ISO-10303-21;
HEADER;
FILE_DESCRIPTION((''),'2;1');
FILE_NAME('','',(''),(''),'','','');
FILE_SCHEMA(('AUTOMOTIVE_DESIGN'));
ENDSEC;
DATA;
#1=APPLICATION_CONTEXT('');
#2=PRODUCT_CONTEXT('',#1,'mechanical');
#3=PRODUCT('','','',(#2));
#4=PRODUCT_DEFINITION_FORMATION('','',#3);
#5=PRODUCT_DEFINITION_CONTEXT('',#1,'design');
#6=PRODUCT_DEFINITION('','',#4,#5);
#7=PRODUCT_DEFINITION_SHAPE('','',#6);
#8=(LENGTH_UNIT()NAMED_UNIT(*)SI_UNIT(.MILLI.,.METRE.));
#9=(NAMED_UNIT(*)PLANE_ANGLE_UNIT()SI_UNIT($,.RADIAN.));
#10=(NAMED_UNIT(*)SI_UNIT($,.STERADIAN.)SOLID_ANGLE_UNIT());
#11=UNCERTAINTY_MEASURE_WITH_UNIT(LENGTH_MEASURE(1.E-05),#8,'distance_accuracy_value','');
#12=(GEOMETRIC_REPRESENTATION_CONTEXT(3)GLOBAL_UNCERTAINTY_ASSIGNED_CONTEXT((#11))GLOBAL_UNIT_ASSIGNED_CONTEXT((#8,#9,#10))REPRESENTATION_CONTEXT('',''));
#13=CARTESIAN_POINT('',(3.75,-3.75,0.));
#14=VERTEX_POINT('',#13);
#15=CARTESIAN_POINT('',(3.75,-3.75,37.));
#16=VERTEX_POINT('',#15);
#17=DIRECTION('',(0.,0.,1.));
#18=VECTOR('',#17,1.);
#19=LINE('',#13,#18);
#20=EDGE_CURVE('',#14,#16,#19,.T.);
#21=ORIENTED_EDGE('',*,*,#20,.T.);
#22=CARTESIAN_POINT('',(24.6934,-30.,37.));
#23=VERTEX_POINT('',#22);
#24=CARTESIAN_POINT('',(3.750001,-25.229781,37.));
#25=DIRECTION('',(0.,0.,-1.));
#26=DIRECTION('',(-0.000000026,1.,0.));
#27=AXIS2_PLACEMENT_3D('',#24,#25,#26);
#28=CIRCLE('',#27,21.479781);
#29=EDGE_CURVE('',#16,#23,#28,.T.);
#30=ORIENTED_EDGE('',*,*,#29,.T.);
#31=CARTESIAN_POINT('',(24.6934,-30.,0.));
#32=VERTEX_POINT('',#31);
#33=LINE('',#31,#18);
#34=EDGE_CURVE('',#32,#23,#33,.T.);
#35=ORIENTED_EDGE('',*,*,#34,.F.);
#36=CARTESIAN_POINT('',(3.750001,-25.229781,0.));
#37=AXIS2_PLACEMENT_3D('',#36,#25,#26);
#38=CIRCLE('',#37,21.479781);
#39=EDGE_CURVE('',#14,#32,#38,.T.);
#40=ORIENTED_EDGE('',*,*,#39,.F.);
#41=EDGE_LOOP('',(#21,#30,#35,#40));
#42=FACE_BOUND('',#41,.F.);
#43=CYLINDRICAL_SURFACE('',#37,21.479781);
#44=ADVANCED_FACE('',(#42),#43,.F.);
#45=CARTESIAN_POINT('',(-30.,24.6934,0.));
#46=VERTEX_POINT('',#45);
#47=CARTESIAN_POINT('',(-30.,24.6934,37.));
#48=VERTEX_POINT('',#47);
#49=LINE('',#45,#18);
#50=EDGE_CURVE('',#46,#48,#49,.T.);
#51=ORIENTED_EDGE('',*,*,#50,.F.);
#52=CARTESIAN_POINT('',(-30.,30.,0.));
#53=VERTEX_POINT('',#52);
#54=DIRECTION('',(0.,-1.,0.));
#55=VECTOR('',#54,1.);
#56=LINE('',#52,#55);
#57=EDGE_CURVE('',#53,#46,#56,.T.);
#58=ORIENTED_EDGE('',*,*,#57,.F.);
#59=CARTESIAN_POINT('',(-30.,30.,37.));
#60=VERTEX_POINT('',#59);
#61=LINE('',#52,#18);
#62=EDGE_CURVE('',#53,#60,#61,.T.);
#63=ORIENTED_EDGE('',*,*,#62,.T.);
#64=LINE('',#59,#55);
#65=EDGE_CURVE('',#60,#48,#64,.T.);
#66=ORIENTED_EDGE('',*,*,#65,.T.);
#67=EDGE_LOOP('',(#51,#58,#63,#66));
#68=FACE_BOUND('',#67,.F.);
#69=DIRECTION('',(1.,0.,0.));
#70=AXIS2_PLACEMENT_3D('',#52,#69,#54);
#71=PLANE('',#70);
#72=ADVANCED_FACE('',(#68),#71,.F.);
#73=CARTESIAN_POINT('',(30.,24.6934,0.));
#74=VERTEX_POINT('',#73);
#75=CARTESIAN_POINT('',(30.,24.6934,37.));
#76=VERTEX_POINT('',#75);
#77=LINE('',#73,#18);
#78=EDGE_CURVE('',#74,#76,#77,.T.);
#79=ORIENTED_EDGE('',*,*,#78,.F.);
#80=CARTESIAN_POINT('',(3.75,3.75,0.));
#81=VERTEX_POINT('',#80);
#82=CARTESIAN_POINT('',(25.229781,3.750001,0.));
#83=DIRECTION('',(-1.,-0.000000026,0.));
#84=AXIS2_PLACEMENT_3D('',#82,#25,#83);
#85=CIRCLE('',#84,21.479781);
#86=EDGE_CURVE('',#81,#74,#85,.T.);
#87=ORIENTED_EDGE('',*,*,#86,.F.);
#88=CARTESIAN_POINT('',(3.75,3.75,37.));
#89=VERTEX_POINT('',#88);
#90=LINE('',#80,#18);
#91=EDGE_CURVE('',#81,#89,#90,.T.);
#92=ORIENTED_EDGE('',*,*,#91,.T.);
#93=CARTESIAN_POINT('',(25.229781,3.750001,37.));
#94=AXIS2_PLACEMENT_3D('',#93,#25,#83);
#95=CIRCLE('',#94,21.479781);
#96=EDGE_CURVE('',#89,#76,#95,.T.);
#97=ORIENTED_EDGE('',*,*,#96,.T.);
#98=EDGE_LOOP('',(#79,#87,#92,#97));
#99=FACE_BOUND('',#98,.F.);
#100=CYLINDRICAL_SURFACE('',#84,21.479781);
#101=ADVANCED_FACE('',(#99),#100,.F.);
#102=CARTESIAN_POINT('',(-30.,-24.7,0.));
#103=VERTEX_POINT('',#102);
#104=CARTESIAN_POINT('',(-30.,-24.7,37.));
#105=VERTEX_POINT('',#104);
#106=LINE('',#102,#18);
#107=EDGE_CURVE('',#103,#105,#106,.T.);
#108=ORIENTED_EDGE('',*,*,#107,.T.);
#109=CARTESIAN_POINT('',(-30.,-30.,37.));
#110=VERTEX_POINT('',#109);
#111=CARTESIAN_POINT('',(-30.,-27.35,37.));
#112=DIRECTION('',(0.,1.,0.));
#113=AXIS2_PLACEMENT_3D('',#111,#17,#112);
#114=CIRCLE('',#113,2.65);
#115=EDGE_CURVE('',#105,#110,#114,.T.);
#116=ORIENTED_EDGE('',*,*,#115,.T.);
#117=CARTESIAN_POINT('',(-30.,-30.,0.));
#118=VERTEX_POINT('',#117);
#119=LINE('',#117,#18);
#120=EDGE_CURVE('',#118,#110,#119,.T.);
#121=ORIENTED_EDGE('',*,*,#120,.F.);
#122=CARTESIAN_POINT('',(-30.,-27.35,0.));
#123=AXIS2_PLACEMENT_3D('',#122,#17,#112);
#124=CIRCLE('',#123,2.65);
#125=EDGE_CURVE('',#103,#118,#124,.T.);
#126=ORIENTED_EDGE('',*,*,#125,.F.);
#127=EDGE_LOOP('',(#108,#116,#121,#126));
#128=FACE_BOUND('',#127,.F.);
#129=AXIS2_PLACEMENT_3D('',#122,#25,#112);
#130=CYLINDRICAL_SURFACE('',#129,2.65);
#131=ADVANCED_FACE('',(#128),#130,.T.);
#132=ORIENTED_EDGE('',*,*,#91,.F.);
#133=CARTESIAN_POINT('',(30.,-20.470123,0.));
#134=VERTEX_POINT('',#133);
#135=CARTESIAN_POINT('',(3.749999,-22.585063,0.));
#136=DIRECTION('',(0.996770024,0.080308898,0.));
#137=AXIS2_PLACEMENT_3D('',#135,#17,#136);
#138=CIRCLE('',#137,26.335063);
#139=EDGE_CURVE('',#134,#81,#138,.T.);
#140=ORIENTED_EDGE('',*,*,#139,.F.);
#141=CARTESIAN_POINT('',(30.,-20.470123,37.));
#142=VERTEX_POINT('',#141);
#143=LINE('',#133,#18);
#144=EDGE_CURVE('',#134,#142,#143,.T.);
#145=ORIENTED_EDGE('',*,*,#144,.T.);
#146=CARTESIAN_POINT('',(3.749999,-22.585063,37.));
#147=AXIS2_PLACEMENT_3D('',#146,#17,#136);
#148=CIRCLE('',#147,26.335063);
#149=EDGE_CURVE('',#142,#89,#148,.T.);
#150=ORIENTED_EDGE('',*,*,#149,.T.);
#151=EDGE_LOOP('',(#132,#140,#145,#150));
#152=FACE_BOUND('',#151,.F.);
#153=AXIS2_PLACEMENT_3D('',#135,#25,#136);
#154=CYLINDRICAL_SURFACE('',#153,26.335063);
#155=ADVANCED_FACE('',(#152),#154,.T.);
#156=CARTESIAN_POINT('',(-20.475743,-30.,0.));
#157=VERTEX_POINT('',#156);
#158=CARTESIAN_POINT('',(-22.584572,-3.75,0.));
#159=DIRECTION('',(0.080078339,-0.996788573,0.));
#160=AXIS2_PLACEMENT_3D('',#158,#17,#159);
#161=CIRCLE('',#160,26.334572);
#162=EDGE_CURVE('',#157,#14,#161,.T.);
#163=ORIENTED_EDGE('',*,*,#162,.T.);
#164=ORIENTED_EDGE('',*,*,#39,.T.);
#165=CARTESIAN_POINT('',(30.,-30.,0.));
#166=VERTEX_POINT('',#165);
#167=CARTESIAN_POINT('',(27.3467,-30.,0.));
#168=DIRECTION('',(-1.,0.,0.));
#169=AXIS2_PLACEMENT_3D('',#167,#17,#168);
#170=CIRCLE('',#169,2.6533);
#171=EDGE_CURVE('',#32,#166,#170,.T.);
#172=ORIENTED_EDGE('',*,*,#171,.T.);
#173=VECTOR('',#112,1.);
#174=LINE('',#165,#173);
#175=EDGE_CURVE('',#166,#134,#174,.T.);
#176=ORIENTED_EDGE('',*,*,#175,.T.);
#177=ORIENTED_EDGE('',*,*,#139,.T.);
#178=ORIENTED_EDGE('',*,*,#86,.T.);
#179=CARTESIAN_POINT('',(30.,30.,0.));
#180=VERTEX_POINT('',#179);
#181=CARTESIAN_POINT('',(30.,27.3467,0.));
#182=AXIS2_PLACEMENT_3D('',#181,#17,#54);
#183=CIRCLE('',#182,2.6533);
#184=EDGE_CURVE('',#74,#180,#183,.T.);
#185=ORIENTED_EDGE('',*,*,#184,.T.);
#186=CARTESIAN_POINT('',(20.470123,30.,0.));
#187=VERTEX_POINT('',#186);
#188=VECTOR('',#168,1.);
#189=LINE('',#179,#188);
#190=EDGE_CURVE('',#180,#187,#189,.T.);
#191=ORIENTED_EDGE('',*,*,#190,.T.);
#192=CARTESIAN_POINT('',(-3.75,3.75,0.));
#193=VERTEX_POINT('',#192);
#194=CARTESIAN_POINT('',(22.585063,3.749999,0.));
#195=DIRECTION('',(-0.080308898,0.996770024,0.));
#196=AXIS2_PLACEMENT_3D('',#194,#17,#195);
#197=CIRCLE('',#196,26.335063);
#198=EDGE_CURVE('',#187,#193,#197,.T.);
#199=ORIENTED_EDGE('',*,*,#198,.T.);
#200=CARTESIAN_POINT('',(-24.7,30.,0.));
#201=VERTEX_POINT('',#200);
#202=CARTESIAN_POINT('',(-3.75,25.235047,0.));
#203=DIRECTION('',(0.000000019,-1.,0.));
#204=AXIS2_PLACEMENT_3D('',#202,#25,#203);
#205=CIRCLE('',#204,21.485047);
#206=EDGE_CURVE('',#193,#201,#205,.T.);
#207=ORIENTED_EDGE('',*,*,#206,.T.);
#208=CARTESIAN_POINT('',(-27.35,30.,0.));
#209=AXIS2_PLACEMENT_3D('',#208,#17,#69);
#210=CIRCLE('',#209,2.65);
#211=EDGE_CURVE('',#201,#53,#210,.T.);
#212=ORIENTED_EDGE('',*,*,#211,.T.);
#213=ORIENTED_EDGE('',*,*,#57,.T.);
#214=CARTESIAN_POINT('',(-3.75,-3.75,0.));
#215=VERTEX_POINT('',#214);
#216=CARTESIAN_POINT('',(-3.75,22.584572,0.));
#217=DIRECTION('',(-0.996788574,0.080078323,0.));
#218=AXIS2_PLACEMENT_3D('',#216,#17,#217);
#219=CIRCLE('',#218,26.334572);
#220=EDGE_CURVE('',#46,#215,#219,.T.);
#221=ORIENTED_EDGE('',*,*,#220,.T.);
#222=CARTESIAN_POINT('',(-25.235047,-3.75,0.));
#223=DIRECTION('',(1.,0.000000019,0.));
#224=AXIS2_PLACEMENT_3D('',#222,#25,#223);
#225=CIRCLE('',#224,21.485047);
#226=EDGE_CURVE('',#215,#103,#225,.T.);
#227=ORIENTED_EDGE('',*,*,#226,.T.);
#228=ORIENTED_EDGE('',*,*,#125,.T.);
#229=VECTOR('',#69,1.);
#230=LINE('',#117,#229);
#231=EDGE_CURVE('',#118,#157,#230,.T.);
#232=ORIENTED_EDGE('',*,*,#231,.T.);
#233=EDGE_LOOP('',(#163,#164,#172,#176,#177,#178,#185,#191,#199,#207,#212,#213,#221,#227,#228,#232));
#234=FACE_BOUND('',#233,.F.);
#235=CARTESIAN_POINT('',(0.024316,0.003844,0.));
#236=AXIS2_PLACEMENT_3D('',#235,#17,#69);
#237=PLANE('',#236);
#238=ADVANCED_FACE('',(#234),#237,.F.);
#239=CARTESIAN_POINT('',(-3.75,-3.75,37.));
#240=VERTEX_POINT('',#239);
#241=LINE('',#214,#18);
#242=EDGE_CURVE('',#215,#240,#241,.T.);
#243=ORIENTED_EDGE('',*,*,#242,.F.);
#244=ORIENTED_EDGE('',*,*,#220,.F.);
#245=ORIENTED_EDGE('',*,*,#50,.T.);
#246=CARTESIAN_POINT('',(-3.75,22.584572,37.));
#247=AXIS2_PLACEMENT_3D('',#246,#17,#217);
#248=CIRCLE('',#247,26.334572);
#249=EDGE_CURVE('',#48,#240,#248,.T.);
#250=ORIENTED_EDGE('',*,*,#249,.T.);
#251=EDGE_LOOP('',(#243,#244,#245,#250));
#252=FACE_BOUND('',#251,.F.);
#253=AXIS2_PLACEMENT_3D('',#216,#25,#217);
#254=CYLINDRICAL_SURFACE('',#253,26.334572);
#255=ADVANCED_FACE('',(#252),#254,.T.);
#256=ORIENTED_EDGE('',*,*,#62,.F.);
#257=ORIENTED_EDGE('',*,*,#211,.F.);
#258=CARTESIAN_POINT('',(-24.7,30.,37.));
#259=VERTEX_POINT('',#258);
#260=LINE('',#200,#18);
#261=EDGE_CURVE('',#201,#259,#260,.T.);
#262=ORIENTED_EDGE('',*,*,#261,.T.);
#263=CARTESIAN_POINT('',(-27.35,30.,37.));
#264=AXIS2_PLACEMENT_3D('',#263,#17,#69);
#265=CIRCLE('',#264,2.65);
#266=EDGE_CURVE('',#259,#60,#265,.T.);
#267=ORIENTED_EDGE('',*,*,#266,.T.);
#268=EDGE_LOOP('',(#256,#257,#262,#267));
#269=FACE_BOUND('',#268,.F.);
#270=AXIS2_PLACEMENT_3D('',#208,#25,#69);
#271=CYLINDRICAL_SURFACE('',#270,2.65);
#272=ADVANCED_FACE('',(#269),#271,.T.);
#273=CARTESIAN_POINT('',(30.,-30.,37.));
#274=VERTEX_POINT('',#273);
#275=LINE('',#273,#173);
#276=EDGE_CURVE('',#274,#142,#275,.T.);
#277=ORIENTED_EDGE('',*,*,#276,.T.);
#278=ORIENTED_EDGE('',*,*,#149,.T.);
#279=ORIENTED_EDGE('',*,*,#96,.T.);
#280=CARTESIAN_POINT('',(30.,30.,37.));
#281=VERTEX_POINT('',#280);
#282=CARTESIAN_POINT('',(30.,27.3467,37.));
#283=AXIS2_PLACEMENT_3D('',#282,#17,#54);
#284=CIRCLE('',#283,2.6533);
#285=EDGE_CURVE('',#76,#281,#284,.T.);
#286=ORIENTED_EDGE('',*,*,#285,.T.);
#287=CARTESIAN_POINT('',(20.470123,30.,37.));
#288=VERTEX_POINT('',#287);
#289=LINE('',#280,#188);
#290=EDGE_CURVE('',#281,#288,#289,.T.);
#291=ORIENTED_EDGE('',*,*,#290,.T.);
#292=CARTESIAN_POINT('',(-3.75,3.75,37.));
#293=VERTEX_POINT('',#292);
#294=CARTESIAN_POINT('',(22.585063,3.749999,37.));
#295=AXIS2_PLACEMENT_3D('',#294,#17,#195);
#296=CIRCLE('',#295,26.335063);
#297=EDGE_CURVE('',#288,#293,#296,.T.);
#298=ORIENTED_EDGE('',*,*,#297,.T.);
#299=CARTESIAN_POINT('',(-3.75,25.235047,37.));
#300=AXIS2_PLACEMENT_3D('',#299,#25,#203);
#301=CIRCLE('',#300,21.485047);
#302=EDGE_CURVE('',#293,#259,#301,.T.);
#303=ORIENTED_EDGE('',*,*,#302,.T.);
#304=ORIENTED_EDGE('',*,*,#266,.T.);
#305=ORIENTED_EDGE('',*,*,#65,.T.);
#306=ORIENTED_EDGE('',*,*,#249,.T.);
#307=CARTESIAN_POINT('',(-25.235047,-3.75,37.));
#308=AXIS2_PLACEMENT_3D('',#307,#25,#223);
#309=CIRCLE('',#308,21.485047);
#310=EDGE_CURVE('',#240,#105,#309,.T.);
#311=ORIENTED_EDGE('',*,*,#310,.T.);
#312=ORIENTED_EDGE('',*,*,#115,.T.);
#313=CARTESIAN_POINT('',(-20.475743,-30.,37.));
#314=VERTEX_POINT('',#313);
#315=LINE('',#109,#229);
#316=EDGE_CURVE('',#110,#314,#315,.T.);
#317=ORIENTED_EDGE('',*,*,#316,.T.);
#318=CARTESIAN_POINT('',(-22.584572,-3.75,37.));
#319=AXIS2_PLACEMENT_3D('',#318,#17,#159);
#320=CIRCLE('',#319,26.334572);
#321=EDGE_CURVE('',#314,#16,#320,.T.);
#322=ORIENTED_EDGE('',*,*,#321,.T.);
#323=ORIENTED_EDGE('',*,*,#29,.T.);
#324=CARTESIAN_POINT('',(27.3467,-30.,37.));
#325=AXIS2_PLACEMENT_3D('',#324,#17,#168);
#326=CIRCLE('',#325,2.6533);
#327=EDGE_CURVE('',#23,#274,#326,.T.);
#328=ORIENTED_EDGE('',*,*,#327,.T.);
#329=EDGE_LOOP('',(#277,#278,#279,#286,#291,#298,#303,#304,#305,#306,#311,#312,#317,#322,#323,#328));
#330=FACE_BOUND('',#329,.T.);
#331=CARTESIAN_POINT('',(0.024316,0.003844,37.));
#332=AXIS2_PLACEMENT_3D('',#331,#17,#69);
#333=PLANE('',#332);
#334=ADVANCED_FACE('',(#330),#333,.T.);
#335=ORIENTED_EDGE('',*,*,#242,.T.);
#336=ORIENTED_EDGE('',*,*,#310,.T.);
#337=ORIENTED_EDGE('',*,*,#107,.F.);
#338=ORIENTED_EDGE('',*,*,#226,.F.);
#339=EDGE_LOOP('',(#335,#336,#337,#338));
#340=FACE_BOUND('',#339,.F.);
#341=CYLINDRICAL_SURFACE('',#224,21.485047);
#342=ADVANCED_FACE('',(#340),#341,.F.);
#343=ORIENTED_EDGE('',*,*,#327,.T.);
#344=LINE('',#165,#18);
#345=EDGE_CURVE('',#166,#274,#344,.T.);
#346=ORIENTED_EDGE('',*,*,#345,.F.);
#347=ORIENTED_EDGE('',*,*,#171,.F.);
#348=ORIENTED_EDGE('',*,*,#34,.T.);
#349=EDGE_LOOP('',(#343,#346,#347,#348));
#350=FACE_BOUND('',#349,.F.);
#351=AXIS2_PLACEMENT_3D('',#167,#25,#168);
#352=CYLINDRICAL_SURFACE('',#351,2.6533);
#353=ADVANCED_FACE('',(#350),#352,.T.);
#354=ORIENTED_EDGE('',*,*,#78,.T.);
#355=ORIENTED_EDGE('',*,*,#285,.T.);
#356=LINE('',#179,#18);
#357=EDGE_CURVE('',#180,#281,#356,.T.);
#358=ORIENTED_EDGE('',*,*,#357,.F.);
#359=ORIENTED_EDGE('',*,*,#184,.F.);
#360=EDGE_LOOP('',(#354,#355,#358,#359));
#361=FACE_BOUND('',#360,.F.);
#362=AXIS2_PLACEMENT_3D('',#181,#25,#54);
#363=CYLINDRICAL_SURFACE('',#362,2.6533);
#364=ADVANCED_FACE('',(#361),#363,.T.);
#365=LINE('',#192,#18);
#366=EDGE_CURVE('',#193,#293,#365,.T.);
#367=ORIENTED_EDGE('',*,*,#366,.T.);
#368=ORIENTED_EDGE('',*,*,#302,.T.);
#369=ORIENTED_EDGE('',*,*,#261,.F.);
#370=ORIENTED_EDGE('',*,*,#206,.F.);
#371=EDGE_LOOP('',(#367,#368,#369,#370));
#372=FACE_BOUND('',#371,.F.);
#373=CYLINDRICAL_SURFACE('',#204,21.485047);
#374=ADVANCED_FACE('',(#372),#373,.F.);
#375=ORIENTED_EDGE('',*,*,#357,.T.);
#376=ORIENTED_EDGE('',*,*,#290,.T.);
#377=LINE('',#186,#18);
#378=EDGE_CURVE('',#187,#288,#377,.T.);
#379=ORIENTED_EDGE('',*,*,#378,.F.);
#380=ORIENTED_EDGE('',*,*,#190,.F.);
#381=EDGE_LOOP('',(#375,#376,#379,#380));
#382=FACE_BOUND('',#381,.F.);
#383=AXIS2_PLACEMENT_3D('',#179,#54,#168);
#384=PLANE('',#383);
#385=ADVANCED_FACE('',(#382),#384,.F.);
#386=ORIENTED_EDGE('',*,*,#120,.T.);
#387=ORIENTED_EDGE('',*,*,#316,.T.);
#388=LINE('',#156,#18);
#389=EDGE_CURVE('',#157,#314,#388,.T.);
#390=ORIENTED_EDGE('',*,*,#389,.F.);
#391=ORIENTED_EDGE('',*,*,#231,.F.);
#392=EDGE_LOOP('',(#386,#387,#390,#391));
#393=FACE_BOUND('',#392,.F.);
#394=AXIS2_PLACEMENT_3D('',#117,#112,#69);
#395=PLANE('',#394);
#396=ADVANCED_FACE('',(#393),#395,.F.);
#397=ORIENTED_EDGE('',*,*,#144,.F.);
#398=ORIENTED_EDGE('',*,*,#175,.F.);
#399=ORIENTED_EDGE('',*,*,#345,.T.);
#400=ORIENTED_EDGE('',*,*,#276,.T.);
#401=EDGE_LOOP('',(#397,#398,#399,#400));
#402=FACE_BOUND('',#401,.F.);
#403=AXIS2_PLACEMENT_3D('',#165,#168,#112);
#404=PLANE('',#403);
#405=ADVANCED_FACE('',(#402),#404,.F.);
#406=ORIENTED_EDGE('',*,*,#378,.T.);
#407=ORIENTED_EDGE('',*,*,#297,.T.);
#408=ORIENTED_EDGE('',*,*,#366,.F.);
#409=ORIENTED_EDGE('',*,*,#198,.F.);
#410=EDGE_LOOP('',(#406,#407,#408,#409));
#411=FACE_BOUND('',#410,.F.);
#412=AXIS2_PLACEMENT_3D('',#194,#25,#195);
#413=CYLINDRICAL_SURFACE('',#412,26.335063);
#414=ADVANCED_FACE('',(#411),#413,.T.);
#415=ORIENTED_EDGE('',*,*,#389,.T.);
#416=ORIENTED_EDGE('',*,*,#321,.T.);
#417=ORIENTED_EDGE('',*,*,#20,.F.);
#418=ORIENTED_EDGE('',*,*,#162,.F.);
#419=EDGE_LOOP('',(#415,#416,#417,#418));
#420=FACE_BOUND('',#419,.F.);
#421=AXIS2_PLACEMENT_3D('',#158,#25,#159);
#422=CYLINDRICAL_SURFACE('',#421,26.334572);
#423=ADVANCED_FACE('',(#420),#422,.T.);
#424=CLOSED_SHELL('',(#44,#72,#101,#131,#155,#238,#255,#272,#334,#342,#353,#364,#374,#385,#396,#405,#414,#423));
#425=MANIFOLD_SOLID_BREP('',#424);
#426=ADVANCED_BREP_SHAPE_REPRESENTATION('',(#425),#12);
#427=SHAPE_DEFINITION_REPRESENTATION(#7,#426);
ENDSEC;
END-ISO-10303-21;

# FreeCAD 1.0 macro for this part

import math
import FreeCAD as App
import Part
import Sketcher
from FreeCAD import Vector
Q = App.Units.Quantity

doc = App.newDocument("Part")
body = doc.addObject("PartDesign::Body", "Body")

# Sketch on XY plane
sketch1 = body.newObject("Sketcher::SketchObject", "Sketch")
sketch1.AttachmentSupport = (doc.getObject("XY_Plane"), [""])
sketch1.MapMode = "FlatFace"
sketch1.addGeometry([
    Part.ArcOfCircle(Part.Circle(Vector(22.6, 3.7, 0), Vector(0, 0, 1), 26.3), math.radians(95), math.radians(180)),  # 0
    Part.ArcOfCircle(Part.Circle(Vector(-3.8, 25.2, 0), Vector(0, 0, 1), 21.5), math.radians(167), math.radians(270)),  # 1
    Part.ArcOfCircle(Part.Circle(Vector(-27.4, 30, 0), Vector(0, 0, 1), 2.6), math.radians(0), math.radians(180)),  # 2
    Part.LineSegment(Vector(-30, 30, 0), Vector(-30, 24.7, 0)),  # 3
    Part.ArcOfCircle(Part.Circle(Vector(-3.7, 22.6, 0), Vector(0, 0, 1), 26.3), math.radians(175), math.radians(270)),  # 4
    Part.ArcOfCircle(Part.Circle(Vector(-25.2, -3.8, 0), Vector(0, 0, 1), 21.5), math.radians(-103), math.radians(0)),  # 5
    Part.ArcOfCircle(Part.Circle(Vector(-30, -27.4, 0), Vector(0, 0, 1), 2.6), math.radians(90), math.radians(270)),  # 6
    Part.LineSegment(Vector(-30, -30, 0), Vector(-20.5, -30, 0)),  # 7
    Part.ArcOfCircle(Part.Circle(Vector(-22.6, -3.7, 0), Vector(0, 0, 1), 26.3), math.radians(-85), math.radians(0)),  # 8
    Part.ArcOfCircle(Part.Circle(Vector(3.8, -25.2, 0), Vector(0, 0, 1), 21.5), math.radians(-13), math.radians(90)),  # 9
    Part.ArcOfCircle(Part.Circle(Vector(27.3, -30, 0), Vector(0, 0, 1), 2.7), math.radians(180), math.radians(360)),  # 10
    Part.LineSegment(Vector(30, -30, 0), Vector(30, -20.5, 0)),  # 11
    Part.ArcOfCircle(Part.Circle(Vector(3.7, -22.6, 0), Vector(0, 0, 1), 26.3), math.radians(5), math.radians(90)),  # 12
    Part.ArcOfCircle(Part.Circle(Vector(25.2, 3.8, 0), Vector(0, 0, 1), 21.5), math.radians(77), math.radians(180)),  # 13
    Part.ArcOfCircle(Part.Circle(Vector(30, 27.3, 0), Vector(0, 0, 1), 2.7), math.radians(-90), math.radians(90)),  # 14
    Part.LineSegment(Vector(30, 30, 0), Vector(20.5, 30, 0)),  # 15
], False)
sketch1.addConstraint([
    Sketcher.Constraint("Coincident", 0, 2, 1, 2),
    Sketcher.Constraint("Coincident", 1, 1, 2, 1),
    Sketcher.Constraint("Tangent", 2, 2, 3, 1),
    Sketcher.Constraint("Coincident", 3, 2, 4, 1),
    Sketcher.Constraint("Coincident", 4, 2, 5, 2),
    Sketcher.Constraint("Coincident", 5, 1, 6, 1),
    Sketcher.Constraint("Tangent", 6, 2, 7, 1),
    Sketcher.Constraint("Coincident", 7, 2, 8, 1),
    Sketcher.Constraint("Coincident", 8, 2, 9, 2),
    Sketcher.Constraint("Coincident", 9, 1, 10, 1),
    Sketcher.Constraint("Tangent", 10, 2, 11, 1),
    Sketcher.Constraint("Coincident", 11, 2, 12, 1),
    Sketcher.Constraint("Coincident", 12, 2, 13, 2),
    Sketcher.Constraint("Coincident", 13, 1, 14, 1),
    Sketcher.Constraint("Tangent", 14, 2, 15, 1),
    Sketcher.Constraint("Coincident", 15, 2, 0, 1),
    Sketcher.Constraint("Vertical", 3),
    Sketcher.Constraint("Horizontal", 7),
    Sketcher.Constraint("Vertical", 11),
    Sketcher.Constraint("Horizontal", 15),
    Sketcher.Constraint("Equal", 1, 5),
    Sketcher.Constraint("Equal", 2, 6),
    Sketcher.Constraint("Equal", 4, 8),
    Sketcher.Constraint("Equal", 0, 12),
    Sketcher.Constraint("Equal", 9, 13),
    Sketcher.Constraint("Equal", 10, 14),
    Sketcher.Constraint("Symmetric", 0, 2, 8, 2, -1, 1),
    Sketcher.Constraint("Symmetric", 2, 2, 10, 2, -1, 1),
    Sketcher.Constraint("Symmetric", 4, 2, 12, 2, -1, 1),
    Sketcher.Constraint("Symmetric", 6, 2, 14, 2, -1, 1),
    Sketcher.Constraint("Symmetric", 4, 2, 8, 2, -2),
    Sketcher.Constraint("Symmetric", 6, 2, 10, 2, -2),
    Sketcher.Constraint("Symmetric", 3, 2, 13, 1, -2),
    Sketcher.Constraint("Horizontal", 5, 3, 8, 3),
    Sketcher.Constraint("Horizontal", 0, 3, 13, 3),
    Sketcher.Constraint("Horizontal", 13, 3, 0, 2),
    Sketcher.Constraint("Horizontal", 2, 3, 1, 1),
    Sketcher.Constraint("Horizontal", 8, 3, 4, 2),
    Sketcher.Constraint("Horizontal", 7, 2, 9, 1),
    Sketcher.Constraint("Vertical", 1, 3, 4, 3),
    Sketcher.Constraint("Vertical", 9, 3, 12, 3),
    Sketcher.Constraint("Vertical", 4, 3, 0, 2),
    Sketcher.Constraint("Vertical", 3, 2, 5, 1),
    Sketcher.Constraint("Equal", 15, 11),
    Sketcher.Constraint("Radius", 2, Q("2.65 mm")),
    Sketcher.Constraint("DistanceY", -1, 1, 2, 3, Q("30 mm")),
    Sketcher.Constraint("Radius", 10, Q("2.6533 mm")),
    Sketcher.Constraint("DistanceX", 2, 3, 1, 3, Q("23.6 mm")),
    Sketcher.Constraint("Radius", 0, Q("26.335063 mm")),
])
pad1 = body.newObject("PartDesign::Pad", "Pad")
pad1.Profile = sketch1
pad1.Length = 37

doc.recompute()
